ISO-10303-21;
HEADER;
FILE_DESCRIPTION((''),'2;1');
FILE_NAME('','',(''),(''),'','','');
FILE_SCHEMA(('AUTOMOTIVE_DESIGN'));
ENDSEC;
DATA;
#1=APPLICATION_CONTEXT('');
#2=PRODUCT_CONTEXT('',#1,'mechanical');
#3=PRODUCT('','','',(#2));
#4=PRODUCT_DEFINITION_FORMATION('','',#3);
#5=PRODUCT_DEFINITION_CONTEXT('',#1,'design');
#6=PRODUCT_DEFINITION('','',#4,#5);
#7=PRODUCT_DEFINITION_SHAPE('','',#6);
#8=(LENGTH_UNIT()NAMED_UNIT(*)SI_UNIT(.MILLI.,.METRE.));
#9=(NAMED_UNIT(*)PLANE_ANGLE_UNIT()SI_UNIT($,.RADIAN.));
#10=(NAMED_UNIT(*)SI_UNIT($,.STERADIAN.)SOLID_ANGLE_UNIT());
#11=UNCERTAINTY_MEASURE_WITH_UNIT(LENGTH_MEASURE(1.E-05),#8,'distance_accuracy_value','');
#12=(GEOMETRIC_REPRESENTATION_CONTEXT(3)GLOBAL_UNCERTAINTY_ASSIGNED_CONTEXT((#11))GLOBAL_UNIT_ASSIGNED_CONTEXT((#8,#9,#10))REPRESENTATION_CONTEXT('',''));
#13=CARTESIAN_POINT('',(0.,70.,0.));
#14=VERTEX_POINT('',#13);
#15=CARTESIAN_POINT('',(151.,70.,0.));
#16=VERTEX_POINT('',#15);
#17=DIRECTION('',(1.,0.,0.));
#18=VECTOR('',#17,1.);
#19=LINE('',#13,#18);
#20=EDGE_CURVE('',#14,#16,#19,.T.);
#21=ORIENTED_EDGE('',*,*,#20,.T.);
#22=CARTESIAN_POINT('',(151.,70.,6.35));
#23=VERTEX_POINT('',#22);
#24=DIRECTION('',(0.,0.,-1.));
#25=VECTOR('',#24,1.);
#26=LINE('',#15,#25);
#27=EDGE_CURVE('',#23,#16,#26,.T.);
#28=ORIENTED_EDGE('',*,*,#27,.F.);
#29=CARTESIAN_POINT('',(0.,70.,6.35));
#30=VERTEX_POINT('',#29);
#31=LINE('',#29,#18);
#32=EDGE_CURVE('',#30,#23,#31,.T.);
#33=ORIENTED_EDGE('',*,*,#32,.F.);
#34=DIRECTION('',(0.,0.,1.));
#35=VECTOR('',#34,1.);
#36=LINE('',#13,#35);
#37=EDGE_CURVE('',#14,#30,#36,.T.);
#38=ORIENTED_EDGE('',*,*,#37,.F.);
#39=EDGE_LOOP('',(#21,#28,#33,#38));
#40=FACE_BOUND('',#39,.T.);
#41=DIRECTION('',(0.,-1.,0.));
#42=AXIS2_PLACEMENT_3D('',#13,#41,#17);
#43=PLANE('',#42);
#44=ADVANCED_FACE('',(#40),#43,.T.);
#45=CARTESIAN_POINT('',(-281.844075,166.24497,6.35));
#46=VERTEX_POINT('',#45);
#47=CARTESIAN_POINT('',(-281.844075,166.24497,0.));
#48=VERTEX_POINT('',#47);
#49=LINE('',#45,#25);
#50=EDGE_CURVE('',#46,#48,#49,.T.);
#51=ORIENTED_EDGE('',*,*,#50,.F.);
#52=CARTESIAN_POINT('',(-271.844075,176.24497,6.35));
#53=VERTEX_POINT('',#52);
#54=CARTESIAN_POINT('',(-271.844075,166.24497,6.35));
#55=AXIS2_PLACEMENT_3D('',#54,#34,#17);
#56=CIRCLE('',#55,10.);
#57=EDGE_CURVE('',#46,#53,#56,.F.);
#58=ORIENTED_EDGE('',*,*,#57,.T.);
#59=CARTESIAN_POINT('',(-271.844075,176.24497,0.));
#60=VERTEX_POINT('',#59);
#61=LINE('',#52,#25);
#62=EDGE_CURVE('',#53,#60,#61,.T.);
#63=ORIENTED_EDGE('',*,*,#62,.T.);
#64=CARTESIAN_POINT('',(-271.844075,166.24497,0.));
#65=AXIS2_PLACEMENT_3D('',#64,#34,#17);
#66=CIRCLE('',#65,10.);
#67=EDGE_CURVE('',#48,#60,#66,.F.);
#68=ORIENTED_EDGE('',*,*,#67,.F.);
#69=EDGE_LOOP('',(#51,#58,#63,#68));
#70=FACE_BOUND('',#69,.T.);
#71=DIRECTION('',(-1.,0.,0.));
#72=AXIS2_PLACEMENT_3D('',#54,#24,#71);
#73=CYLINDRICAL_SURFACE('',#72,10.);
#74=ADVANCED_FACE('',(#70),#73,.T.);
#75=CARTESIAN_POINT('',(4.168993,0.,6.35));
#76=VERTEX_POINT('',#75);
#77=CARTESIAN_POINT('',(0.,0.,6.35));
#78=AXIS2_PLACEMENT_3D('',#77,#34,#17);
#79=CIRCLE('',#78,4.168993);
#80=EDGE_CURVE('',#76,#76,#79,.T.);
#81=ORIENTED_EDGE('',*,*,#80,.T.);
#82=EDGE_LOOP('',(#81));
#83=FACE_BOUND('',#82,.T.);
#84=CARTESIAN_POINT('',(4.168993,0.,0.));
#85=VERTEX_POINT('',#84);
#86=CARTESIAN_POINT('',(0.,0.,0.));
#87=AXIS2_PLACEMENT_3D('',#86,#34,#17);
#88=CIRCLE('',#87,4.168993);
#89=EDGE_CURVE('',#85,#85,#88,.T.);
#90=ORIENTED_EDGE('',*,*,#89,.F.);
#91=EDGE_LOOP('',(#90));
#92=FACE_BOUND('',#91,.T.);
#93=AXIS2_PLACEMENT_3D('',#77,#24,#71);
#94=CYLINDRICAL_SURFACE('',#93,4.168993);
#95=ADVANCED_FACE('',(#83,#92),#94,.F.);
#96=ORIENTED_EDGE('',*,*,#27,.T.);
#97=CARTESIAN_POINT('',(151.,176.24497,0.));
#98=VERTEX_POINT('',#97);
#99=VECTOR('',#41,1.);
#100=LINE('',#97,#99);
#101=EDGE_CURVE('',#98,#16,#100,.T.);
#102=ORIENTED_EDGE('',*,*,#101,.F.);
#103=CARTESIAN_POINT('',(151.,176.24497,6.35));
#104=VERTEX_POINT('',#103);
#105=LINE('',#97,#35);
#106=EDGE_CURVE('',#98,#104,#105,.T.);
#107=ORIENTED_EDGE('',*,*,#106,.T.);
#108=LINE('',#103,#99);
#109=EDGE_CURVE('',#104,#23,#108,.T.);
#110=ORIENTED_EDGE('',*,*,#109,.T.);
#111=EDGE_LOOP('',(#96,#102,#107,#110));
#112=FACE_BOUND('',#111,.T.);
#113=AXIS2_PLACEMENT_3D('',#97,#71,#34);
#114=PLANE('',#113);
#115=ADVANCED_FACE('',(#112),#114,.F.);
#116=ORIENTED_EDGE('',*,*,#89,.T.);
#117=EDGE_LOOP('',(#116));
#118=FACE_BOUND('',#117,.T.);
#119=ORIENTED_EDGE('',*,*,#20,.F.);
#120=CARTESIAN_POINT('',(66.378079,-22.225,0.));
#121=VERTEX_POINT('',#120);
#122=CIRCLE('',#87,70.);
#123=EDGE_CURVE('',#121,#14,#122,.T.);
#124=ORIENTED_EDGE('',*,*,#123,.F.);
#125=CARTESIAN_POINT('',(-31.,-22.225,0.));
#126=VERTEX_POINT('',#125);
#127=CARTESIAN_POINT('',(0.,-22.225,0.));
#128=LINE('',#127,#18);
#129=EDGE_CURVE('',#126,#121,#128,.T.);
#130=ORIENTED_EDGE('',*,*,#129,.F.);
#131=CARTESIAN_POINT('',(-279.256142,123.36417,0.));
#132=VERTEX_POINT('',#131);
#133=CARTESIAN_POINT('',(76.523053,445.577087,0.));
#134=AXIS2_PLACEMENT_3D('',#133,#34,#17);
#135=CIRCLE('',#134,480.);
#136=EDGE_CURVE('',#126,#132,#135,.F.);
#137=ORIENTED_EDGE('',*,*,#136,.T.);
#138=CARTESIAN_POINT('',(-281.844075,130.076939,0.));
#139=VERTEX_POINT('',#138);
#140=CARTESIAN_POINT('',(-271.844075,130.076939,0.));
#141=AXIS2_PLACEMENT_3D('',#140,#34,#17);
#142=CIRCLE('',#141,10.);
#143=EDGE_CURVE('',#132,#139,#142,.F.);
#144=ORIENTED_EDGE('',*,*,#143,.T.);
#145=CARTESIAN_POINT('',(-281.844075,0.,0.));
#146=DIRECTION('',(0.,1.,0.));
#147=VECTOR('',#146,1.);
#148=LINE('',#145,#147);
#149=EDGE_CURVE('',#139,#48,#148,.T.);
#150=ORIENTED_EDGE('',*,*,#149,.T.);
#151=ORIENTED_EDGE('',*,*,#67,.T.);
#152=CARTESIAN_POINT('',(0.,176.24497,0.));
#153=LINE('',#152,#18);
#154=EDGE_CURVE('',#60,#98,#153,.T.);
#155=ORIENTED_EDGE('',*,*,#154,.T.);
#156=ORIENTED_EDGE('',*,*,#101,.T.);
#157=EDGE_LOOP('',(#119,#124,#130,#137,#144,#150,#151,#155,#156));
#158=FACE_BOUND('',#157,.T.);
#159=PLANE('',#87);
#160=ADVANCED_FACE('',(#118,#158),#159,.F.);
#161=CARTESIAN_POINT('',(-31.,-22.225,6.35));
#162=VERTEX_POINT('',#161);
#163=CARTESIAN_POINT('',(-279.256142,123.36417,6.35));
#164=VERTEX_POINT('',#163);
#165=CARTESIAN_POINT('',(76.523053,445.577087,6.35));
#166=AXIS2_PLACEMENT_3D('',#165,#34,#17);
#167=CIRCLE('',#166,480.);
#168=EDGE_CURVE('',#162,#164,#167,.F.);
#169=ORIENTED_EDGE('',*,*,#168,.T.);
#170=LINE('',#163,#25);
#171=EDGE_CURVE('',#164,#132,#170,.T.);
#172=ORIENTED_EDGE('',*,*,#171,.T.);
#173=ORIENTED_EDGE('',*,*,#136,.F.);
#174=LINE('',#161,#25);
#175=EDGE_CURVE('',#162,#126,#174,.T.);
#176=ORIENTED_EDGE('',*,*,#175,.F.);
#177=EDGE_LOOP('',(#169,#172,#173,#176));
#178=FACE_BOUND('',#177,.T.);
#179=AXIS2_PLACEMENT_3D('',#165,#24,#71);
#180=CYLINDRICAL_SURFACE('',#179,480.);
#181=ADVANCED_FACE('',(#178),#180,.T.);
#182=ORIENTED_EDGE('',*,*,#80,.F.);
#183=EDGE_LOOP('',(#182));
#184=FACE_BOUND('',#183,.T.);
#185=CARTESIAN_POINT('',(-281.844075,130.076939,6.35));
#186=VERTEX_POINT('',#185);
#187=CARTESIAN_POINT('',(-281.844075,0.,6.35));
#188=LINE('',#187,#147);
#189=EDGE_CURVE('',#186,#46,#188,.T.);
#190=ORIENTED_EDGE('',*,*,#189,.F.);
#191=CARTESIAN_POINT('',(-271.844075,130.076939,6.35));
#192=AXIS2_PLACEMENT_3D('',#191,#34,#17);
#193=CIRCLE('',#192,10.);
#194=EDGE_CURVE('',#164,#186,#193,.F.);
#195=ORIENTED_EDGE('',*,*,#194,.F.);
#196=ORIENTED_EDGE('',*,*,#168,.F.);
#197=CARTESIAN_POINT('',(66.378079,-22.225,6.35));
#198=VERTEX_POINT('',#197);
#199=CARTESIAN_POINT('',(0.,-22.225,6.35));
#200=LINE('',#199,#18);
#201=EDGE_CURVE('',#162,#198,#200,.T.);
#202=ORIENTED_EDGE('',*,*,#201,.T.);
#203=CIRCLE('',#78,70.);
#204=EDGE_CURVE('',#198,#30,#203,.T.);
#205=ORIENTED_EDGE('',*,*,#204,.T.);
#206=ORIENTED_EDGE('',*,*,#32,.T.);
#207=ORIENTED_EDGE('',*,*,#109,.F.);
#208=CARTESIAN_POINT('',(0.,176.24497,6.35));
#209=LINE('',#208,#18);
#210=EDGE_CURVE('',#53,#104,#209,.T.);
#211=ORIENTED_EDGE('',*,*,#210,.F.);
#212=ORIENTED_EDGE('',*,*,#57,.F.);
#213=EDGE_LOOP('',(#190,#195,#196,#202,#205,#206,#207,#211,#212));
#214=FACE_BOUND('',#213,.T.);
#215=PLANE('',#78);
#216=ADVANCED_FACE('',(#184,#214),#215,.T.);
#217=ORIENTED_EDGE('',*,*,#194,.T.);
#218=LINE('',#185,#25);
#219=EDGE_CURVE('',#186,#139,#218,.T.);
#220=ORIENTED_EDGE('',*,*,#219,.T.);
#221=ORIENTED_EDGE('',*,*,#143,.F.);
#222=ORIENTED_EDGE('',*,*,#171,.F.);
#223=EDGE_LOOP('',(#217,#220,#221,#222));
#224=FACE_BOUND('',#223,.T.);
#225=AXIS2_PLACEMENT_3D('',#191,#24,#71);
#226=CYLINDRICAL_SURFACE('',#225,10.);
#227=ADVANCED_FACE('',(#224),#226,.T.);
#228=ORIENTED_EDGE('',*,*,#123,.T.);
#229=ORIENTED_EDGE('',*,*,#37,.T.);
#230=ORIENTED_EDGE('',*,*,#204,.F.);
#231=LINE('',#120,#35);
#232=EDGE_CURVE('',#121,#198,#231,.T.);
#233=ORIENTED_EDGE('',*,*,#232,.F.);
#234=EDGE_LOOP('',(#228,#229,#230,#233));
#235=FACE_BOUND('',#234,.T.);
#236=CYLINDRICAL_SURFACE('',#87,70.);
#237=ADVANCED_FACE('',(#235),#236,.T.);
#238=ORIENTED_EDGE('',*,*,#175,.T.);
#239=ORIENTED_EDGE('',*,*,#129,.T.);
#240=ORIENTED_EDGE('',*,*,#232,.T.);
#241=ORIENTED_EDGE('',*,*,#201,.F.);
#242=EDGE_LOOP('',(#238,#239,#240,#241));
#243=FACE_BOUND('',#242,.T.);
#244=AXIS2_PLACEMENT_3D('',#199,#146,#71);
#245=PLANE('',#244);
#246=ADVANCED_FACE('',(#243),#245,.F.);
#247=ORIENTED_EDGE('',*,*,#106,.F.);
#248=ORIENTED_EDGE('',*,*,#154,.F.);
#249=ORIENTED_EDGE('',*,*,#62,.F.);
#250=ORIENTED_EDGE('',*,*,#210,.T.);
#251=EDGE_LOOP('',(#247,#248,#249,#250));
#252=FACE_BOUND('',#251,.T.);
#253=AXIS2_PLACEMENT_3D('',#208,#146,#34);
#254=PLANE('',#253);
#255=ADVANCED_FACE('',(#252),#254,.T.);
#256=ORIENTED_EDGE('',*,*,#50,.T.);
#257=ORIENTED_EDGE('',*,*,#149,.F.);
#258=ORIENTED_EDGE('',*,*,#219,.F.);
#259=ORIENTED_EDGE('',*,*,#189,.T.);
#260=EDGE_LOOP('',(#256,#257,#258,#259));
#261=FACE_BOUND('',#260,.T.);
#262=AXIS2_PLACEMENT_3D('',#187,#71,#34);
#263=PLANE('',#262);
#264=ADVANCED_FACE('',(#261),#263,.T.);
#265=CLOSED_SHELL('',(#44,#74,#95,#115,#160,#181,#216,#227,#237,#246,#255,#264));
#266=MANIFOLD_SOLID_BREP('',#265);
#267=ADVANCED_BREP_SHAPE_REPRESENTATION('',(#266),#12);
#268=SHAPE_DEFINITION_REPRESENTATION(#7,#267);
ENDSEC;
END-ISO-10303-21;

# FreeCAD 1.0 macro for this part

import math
import FreeCAD as App
import Part
import Sketcher

V = App.Vector
Q = App.Units.Quantity

doc = App.newDocument("Part")
body = doc.addObject("PartDesign::Body", "Body")

# Sketch on XY plane
sketch1 = body.newObject("Sketcher::SketchObject", "Sketch")
sketch1.AttachmentSupport = (doc.getObject("XY_Plane"), [""])
sketch1.MapMode = "FlatFace"
sketch1.addGeometry(Part.ArcOfCircle(Part.Circle(V(225.5, 445.6, 0), V(0, 0, 1), 480), math.radians(-77), math.radians(-42)), False)
sketch1.addGeometry(Part.ArcOfCircle(Part.Circle(V(573.8, 130.1, 0), V(0, 0, 1), 10), math.radians(-42), math.radians(0)), False)
sketch1.addGeometry(Part.LineSegment(V(583.8, 130.1, 0), V(583.8, 166.2, 0)), False)
sketch1.addGeometry(Part.ArcOfCircle(Part.Circle(V(573.8, 166.2, 0), V(0, 0, 1), 10), math.radians(0), math.radians(90)), False)
sketch1.addGeometry(Part.LineSegment(V(573.8, 176.2, 0), V(-271.8, 176.2, 0)), False)
sketch1.addGeometry(Part.ArcOfCircle(Part.Circle(V(-271.8, 166.2, 0), V(0, 0, 1), 10), math.radians(90), math.radians(180)), False)
sketch1.addGeometry(Part.LineSegment(V(-281.8, 166.2, 0), V(-281.8, 130.1, 0)), False)
sketch1.addGeometry(Part.ArcOfCircle(Part.Circle(V(-271.8, 130.1, 0), V(0, 0, 1), 10), math.radians(-180), math.radians(-138)), False)
sketch1.addGeometry(Part.ArcOfCircle(Part.Circle(V(76.5, 445.6, 0), V(0, 0, 1), 480), math.radians(-138), math.radians(-103)), False)
sketch1.addGeometry(Part.LineSegment(V(-31, -22.2, 0), V(333, -22.2, 0)), False)
sketch1.addGeometry(Part.Circle(V(0, 0, 0), V(0, 0, 1), 4.2), False)
sketch1.addConstraint(Sketcher.Constraint("Tangent", 0, 2, 1, 1))
sketch1.addConstraint(Sketcher.Constraint("Tangent", 1, 2, 2, 1))
sketch1.addConstraint(Sketcher.Constraint("Tangent", 2, 2, 3, 1))
sketch1.addConstraint(Sketcher.Constraint("Tangent", 3, 2, 4, 1))
sketch1.addConstraint(Sketcher.Constraint("Tangent", 4, 2, 5, 1))
sketch1.addConstraint(Sketcher.Constraint("Tangent", 5, 2, 6, 1))
sketch1.addConstraint(Sketcher.Constraint("Tangent", 6, 2, 7, 1))
sketch1.addConstraint(Sketcher.Constraint("Tangent", 7, 2, 8, 1))
sketch1.addConstraint(Sketcher.Constraint("Coincident", 8, 2, 9, 1))
sketch1.addConstraint(Sketcher.Constraint("Coincident", 9, 2, 0, 1))
sketch1.addConstraint(Sketcher.Constraint("Vertical", 2))
sketch1.addConstraint(Sketcher.Constraint("Horizontal", 4))
sketch1.addConstraint(Sketcher.Constraint("Vertical", 6))
sketch1.addConstraint(Sketcher.Constraint("Horizontal", 9))
sketch1.addConstraint(Sketcher.Constraint("Coincident", 10, 3, -1, 1))
sketch1.addConstraint(Sketcher.Constraint("Equal", 1, 3))
sketch1.addConstraint(Sketcher.Constraint("Equal", 3, 5))
sketch1.addConstraint(Sketcher.Constraint("Equal", 5, 7))
sketch1.addConstraint(Sketcher.Constraint("Equal", 0, 8))
sketch1.addConstraint(Sketcher.Constraint("Horizontal", 1, 3, 7, 3))
sketch1.addConstraint(Sketcher.Constraint("Horizontal", 0, 3, 8, 3))
sketch1.addConstraint(Sketcher.Constraint("Radius", 0, Q("480 mm")))
sketch1.addConstraint(Sketcher.Constraint("Radius", 1, Q("10 mm")))
sketch1.addConstraint(Sketcher.Constraint("DistanceX", 9, 1, 9, 2, Q("364 mm")))
sketch1.addConstraint(Sketcher.Constraint("DistanceX", -1, 1, 9, 2, Q("333 mm")))
sketch1.addConstraint(Sketcher.Constraint("Diameter", 10, Q("8.337987 mm")))
sketch1.addConstraint(Sketcher.Constraint("DistanceY", 8, 2, -1, 1, Q("22.225 mm")))
sketch1.addConstraint(Sketcher.Constraint("DistanceX", 4, 2, 4, 1, Q("845.68815 mm")))
sketch1.addConstraint(Sketcher.Constraint("DistanceY", 2, 1, 2, 2, Q("36.168031 mm")))
sketch1.addConstraint(Sketcher.Constraint("DistanceY", -1, 1, 1, 3, Q("130.076939 mm")))
pad1 = body.newObject("PartDesign::Pad", "Pad")
pad1.Profile = sketch1
pad1.Length = 6.35

# Sketch on XY plane
sketch2 = body.newObject("Sketcher::SketchObject", "Sketch001")
sketch2.AttachmentSupport = (doc.getObject("XY_Plane"), [""])
sketch2.MapMode = "FlatFace"
sketch2.AttachmentOffset = App.Placement(V(0, 0, 6.35), App.Rotation())
sketch2.addGeometry(Part.ArcOfCircle(Part.Circle(V(0, 0, 0), V(0, 0, 1), 70), math.radians(-19), math.radians(90)), False)
sketch2.addGeometry(Part.LineSegment(V(66, -22, 0), V(236, -22, 0)), False)
sketch2.addGeometry(Part.ArcOfCircle(Part.Circle(V(302, 0, 0), V(0, 0, 1), 70), math.radians(90), math.radians(199)), False)
sketch2.addGeometry(Part.LineSegment(V(302, 70, 0), V(0, 70, 0)), False)
sketch2.addConstraint(Sketcher.Constraint("Coincident", 0, 1, 1, 1))
sketch2.addConstraint(Sketcher.Constraint("Coincident", 1, 2, 2, 2))
sketch2.addConstraint(Sketcher.Constraint("Tangent", 2, 1, 3, 1))
sketch2.addConstraint(Sketcher.Constraint("Tangent", 3, 2, 0, 2))
sketch2.addConstraint(Sketcher.Constraint("Horizontal", 1))
sketch2.addConstraint(Sketcher.Constraint("Horizontal", 3))
sketch2.addConstraint(Sketcher.Constraint("Coincident", 0, 3, -1, 1))
sketch2.addConstraint(Sketcher.Constraint("Equal", 0, 2))
sketch2.addConstraint(Sketcher.Constraint("Radius", 0, Q("70 mm")))
sketch2.addConstraint(Sketcher.Constraint("DistanceX", 3, 2, 3, 1, Q("302 mm")))
sketch2.addConstraint(Sketcher.Constraint("DistanceY", 0, 1, -1, 1, Q("22.225 mm")))
pocket1 = body.newObject("PartDesign::Pocket", "Pocket")
pocket1.Profile = sketch2
pocket1.Length = 6.35

# Sketch on XY plane
sketch3 = body.newObject("Sketcher::SketchObject", "Sketch002")
sketch3.AttachmentSupport = (doc.getObject("XY_Plane"), [""])
sketch3.MapMode = "FlatFace"
sketch3.AttachmentOffset = App.Placement(V(0, 0, 6.35), App.Rotation())
sketch3.addGeometry(Part.LineSegment(V(151, 176, 0), V(151, -111, 0)), False)
sketch3.addGeometry(Part.LineSegment(V(151, -111, 0), V(653, -111, 0)), False)
sketch3.addGeometry(Part.LineSegment(V(653, -111, 0), V(653, 176, 0)), False)
sketch3.addGeometry(Part.LineSegment(V(653, 176, 0), V(151, 176, 0)), False)
sketch3.addConstraint(Sketcher.Constraint("Coincident", 0, 2, 1, 1))
sketch3.addConstraint(Sketcher.Constraint("Coincident", 1, 2, 2, 1))
sketch3.addConstraint(Sketcher.Constraint("Coincident", 2, 2, 3, 1))
sketch3.addConstraint(Sketcher.Constraint("Coincident", 3, 2, 0, 1))
sketch3.addConstraint(Sketcher.Constraint("Vertical", 0))
sketch3.addConstraint(Sketcher.Constraint("Horizontal", 1))
sketch3.addConstraint(Sketcher.Constraint("Vertical", 2))
sketch3.addConstraint(Sketcher.Constraint("Horizontal", 3))
sketch3.addConstraint(Sketcher.Constraint("DistanceX", -1, 1, 0, 2, Q("151 mm")))
sketch3.addConstraint(Sketcher.Constraint("DistanceX", 1, 1, 1, 2, Q("501.853236 mm")))
sketch3.addConstraint(Sketcher.Constraint("DistanceY", 0, 2, 0, 1, Q("287.183942 mm")))
sketch3.addConstraint(Sketcher.Constraint("DistanceY", -1, 1, 2, 2, Q("176.24497 mm")))
pocket2 = body.newObject("PartDesign::Pocket", "Pocket001")
pocket2.Profile = sketch3
pocket2.Length = 6.35

doc.recompute()
